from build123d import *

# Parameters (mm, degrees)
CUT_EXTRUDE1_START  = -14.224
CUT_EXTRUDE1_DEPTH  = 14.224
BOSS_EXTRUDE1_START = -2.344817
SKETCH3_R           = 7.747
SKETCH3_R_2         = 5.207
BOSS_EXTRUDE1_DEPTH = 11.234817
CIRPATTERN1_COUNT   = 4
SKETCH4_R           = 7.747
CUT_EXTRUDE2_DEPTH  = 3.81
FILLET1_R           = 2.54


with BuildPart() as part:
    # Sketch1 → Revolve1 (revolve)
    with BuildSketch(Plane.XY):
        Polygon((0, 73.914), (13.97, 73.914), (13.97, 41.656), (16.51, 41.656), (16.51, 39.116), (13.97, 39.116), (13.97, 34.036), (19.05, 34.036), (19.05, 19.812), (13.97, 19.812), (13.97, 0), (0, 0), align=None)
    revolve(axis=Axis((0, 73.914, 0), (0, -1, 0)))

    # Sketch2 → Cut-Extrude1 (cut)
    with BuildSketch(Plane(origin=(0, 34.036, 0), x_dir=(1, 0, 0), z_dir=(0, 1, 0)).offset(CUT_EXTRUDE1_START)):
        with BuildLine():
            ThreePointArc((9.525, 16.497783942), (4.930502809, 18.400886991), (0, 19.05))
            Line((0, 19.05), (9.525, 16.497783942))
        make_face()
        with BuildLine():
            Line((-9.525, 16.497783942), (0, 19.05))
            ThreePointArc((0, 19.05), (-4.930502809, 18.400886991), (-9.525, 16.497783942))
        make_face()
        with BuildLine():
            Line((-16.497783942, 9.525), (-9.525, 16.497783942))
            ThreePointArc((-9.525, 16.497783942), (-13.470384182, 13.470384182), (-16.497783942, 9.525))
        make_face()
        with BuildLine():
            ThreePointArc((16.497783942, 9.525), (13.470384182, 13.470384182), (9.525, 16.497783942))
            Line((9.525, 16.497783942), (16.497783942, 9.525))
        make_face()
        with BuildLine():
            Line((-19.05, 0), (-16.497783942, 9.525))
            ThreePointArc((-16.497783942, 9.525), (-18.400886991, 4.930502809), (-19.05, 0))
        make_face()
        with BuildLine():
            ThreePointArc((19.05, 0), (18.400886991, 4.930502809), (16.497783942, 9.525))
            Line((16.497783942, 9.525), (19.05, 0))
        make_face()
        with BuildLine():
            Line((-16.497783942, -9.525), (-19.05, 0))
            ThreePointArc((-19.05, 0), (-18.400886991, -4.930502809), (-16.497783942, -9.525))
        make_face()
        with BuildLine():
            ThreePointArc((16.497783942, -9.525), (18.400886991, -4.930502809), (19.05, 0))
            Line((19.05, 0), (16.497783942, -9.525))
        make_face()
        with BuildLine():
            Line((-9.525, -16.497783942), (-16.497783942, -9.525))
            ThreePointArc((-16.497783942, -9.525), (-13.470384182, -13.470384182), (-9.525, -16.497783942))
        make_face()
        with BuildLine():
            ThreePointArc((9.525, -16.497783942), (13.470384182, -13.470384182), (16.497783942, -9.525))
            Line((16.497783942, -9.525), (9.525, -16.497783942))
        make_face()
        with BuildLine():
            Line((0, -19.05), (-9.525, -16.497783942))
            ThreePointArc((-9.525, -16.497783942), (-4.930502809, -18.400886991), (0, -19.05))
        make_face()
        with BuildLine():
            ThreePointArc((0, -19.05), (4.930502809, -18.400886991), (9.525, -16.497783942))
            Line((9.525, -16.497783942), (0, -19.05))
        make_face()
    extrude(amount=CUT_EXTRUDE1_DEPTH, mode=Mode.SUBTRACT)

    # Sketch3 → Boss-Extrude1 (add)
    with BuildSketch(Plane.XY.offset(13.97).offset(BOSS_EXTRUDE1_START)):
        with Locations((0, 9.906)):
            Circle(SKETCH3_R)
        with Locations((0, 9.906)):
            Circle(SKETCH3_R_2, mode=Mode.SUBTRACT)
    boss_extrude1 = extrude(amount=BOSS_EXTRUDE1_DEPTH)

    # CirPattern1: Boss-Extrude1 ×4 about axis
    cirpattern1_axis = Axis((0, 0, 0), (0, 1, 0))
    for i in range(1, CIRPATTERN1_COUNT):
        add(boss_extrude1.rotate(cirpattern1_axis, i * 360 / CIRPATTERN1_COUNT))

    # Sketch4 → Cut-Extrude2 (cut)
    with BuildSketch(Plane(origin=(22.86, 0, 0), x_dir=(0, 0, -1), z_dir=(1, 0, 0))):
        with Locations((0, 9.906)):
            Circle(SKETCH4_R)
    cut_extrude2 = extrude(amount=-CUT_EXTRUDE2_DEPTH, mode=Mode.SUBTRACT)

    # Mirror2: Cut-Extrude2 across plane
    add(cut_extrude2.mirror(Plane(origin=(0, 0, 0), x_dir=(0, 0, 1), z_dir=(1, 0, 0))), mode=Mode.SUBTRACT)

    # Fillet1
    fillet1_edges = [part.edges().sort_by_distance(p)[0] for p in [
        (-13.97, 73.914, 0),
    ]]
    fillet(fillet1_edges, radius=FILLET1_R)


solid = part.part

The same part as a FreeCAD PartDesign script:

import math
import FreeCAD as App
import Part
import Sketcher

V = App.Vector
Q = App.Units.Quantity


def edges_at(feature, points):
    """Names of the edges that pass closest to the given points."""
    edges = feature.Shape.Edges
    near = lambda p: min(range(len(edges)), key=lambda i: edges[i].distToShape(Part.Vertex(*p))[0])
    return sorted({f"Edge{near(p) + 1}" for p in points})

doc = App.newDocument("Part")
body = doc.addObject("PartDesign::Body", "Body")

sketch1 = body.newObject("Sketcher::SketchObject", "Sketch")
sketch1.AttachmentSupport = (doc.getObject("XY_Plane"), [""])
sketch1.MapMode = "FlatFace"
sketch1.addGeometry(Part.LineSegment(V(14, 73.9, 0), V(0, 73.9, 0)), False)
sketch1.addGeometry(Part.LineSegment(V(0, 73.9, 0), V(0, 0, 0)), False)
sketch1.addGeometry(Part.LineSegment(V(0, 0, 0), V(14, 0, 0)), False)
sketch1.addGeometry(Part.LineSegment(V(14, 0, 0), V(14, 19.8, 0)), False)
sketch1.addGeometry(Part.LineSegment(V(14, 19.8, 0), V(19.1, 19.8, 0)), False)
sketch1.addGeometry(Part.LineSegment(V(19.1, 19.8, 0), V(19.1, 34, 0)), False)
sketch1.addGeometry(Part.LineSegment(V(19.1, 34, 0), V(14, 34, 0)), False)
sketch1.addGeometry(Part.LineSegment(V(14, 34, 0), V(14, 39.1, 0)), False)
sketch1.addGeometry(Part.LineSegment(V(14, 39.1, 0), V(16.5, 39.1, 0)), False)
sketch1.addGeometry(Part.LineSegment(V(16.5, 39.1, 0), V(16.5, 41.7, 0)), False)
sketch1.addGeometry(Part.LineSegment(V(16.5, 41.7, 0), V(14, 41.7, 0)), False)
sketch1.addGeometry(Part.LineSegment(V(14, 41.7, 0), V(14, 73.9, 0)), False)
sketch1.addConstraint(Sketcher.Constraint("Coincident", 0, 2, 1, 1))
sketch1.addConstraint(Sketcher.Constraint("Coincident", 1, 2, 2, 1))
sketch1.addConstraint(Sketcher.Constraint("Coincident", 2, 2, 3, 1))
sketch1.addConstraint(Sketcher.Constraint("Coincident", 3, 2, 4, 1))
sketch1.addConstraint(Sketcher.Constraint("Coincident", 4, 2, 5, 1))
sketch1.addConstraint(Sketcher.Constraint("Coincident", 5, 2, 6, 1))
sketch1.addConstraint(Sketcher.Constraint("Coincident", 6, 2, 7, 1))
sketch1.addConstraint(Sketcher.Constraint("Coincident", 7, 2, 8, 1))
sketch1.addConstraint(Sketcher.Constraint("Coincident", 8, 2, 9, 1))
sketch1.addConstraint(Sketcher.Constraint("Coincident", 9, 2, 10, 1))
sketch1.addConstraint(Sketcher.Constraint("Coincident", 10, 2, 11, 1))
sketch1.addConstraint(Sketcher.Constraint("Coincident", 11, 2, 0, 1))
sketch1.addConstraint(Sketcher.Constraint("Horizontal", 0))
sketch1.addConstraint(Sketcher.Constraint("Vertical", 1))
sketch1.addConstraint(Sketcher.Constraint("Horizontal", 2))
sketch1.addConstraint(Sketcher.Constraint("Vertical", 3))
sketch1.addConstraint(Sketcher.Constraint("Horizontal", 4))
sketch1.addConstraint(Sketcher.Constraint("Vertical", 5))
sketch1.addConstraint(Sketcher.Constraint("Horizontal", 6))
sketch1.addConstraint(Sketcher.Constraint("Vertical", 7))
sketch1.addConstraint(Sketcher.Constraint("Horizontal", 8))
sketch1.addConstraint(Sketcher.Constraint("Vertical", 9))
sketch1.addConstraint(Sketcher.Constraint("Horizontal", 10))
sketch1.addConstraint(Sketcher.Constraint("Vertical", 11))
sketch1.addConstraint(Sketcher.Constraint("Coincident", 1, 2, -1, 1))
sketch1.addConstraint(Sketcher.Constraint("Vertical", 3, 2, 6, 2))
sketch1.addConstraint(Sketcher.Constraint("Vertical", 7, 2, 10, 2))
sketch1.addConstraint(Sketcher.Constraint("Equal", 6, 7))
sketch1.addConstraint(Sketcher.Constraint("Equal", 10, 9))
sketch1.addConstraint(Sketcher.Constraint("DistanceX", 4, 1, 4, 2, Q("0.2 in")))
sketch1.addConstraint(Sketcher.Constraint("DistanceX", 8, 1, 8, 2, Q("0.1 in")))
sketch1.addConstraint(Sketcher.Constraint("DistanceX", 0, 2, 0, 1, Q("0.55 in")))
sketch1.addConstraint(Sketcher.Constraint("DistanceY", 1, 2, 1, 1, Q("2.91 in")))
sketch1.addConstraint(Sketcher.Constraint("DistanceY", 3, 1, 3, 2, Q("0.78 in")))
sketch1.addConstraint(Sketcher.Constraint("DistanceY", 5, 1, 5, 2, Q("0.56 in")))
revolution = body.newObject("PartDesign::Revolution", "Revolution")
revolution.Profile = sketch1
revolution.ReferenceAxis = (sketch1, ["V_Axis"])
revolution.Angle = 360

sketch2 = body.newObject("Sketcher::SketchObject", "Sketch001")
sketch2.AttachmentSupport = (doc.getObject("XZ_Plane"), [""])
sketch2.MapMode = "FlatFace"
sketch2.AttachmentOffset = App.Placement(V(0, 0, -0.78 * 25.4), App.Rotation())
sketch2.addGeometry(Part.ArcOfCircle(Part.Circle(V(0, 0, 0), V(0, 0, 1), 19), math.radians(-90), math.radians(-60)), False)
sketch2.addGeometry(Part.LineSegment(V(0, -19, 0), V(10, -16, 0)), False)
sketch2.addGeometry(Part.LineSegment(V(-10, -16, 0), V(0, -19, 0)), False)
sketch2.addGeometry(Part.ArcOfCircle(Part.Circle(V(0, 0, 0), V(0, 0, 1), 19), math.radians(-120), math.radians(-90)), False)
sketch2.addGeometry(Part.LineSegment(V(-16, -10, 0), V(-10, -16, 0)), False)
sketch2.addGeometry(Part.ArcOfCircle(Part.Circle(V(0, 0, 0), V(0, 0, 1), 19), math.radians(-150), math.radians(-120)), False)
sketch2.addGeometry(Part.ArcOfCircle(Part.Circle(V(0, 0, 0), V(0, 0, 1), 19), math.radians(-60), math.radians(-30)), False)
sketch2.addGeometry(Part.LineSegment(V(10, -16, 0), V(16, -10, 0)), False)
sketch2.addGeometry(Part.LineSegment(V(-19, 0, 0), V(-16, -10, 0)), False)
sketch2.addGeometry(Part.ArcOfCircle(Part.Circle(V(0, 0, 0), V(0, 0, 1), 19), math.radians(180), math.radians(210)), False)
sketch2.addGeometry(Part.ArcOfCircle(Part.Circle(V(0, 0, 0), V(0, 0, 1), 19), math.radians(-30), math.radians(0)), False)
sketch2.addGeometry(Part.LineSegment(V(16, -10, 0), V(19, 0, 0)), False)
sketch2.addGeometry(Part.LineSegment(V(-16, 10, 0), V(-19, 0, 0)), False)
sketch2.addGeometry(Part.ArcOfCircle(Part.Circle(V(0, 0, 0), V(0, 0, 1), 19), math.radians(150), math.radians(180)), False)
sketch2.addGeometry(Part.ArcOfCircle(Part.Circle(V(0, 0, 0), V(0, 0, 1), 19), math.radians(0), math.radians(30)), False)
sketch2.addGeometry(Part.LineSegment(V(19, 0, 0), V(16, 10, 0)), False)
sketch2.addGeometry(Part.LineSegment(V(-10, 16, 0), V(-16, 10, 0)), False)
sketch2.addGeometry(Part.ArcOfCircle(Part.Circle(V(0, 0, 0), V(0, 0, 1), 19), math.radians(120), math.radians(150)), False)
sketch2.addGeometry(Part.ArcOfCircle(Part.Circle(V(0, 0, 0), V(0, 0, 1), 19), math.radians(30), math.radians(60)), False)
sketch2.addGeometry(Part.LineSegment(V(16, 10, 0), V(10, 16, 0)), False)
sketch2.addGeometry(Part.LineSegment(V(0, 19, 0), V(-10, 16, 0)), False)
sketch2.addGeometry(Part.ArcOfCircle(Part.Circle(V(0, 0, 0), V(0, 0, 1), 19), math.radians(90), math.radians(120)), False)
sketch2.addGeometry(Part.ArcOfCircle(Part.Circle(V(0, 0, 0), V(0, 0, 1), 19), math.radians(60), math.radians(90)), False)
sketch2.addGeometry(Part.LineSegment(V(10, 16, 0), V(0, 19, 0)), False)
sketch2.addConstraint(Sketcher.Constraint("Coincident", 0, 1, 1, 1))
sketch2.addConstraint(Sketcher.Constraint("Coincident", 1, 2, 0, 2))
sketch2.addConstraint(Sketcher.Constraint("Coincident", 2, 1, 3, 1))
sketch2.addConstraint(Sketcher.Constraint("Coincident", 3, 2, 2, 2))
sketch2.addConstraint(Sketcher.Constraint("Coincident", 4, 1, 5, 1))
sketch2.addConstraint(Sketcher.Constraint("Coincident", 5, 2, 4, 2))
sketch2.addConstraint(Sketcher.Constraint("Coincident", 6, 1, 7, 1))
sketch2.addConstraint(Sketcher.Constraint("Coincident", 7, 2, 6, 2))
sketch2.addConstraint(Sketcher.Constraint("Coincident", 8, 1, 9, 1))
sketch2.addConstraint(Sketcher.Constraint("Coincident", 9, 2, 8, 2))
sketch2.addConstraint(Sketcher.Constraint("Coincident", 10, 1, 11, 1))
sketch2.addConstraint(Sketcher.Constraint("Coincident", 11, 2, 10, 2))
sketch2.addConstraint(Sketcher.Constraint("Coincident", 12, 1, 13, 1))
sketch2.addConstraint(Sketcher.Constraint("Coincident", 13, 2, 12, 2))
sketch2.addConstraint(Sketcher.Constraint("Coincident", 14, 1, 15, 1))
sketch2.addConstraint(Sketcher.Constraint("Coincident", 15, 2, 14, 2))
sketch2.addConstraint(Sketcher.Constraint("Coincident", 16, 1, 17, 1))
sketch2.addConstraint(Sketcher.Constraint("Coincident", 17, 2, 16, 2))
sketch2.addConstraint(Sketcher.Constraint("Coincident", 18, 1, 19, 1))
sketch2.addConstraint(Sketcher.Constraint("Coincident", 19, 2, 18, 2))
sketch2.addConstraint(Sketcher.Constraint("Coincident", 20, 1, 21, 1))
sketch2.addConstraint(Sketcher.Constraint("Coincident", 21, 2, 20, 2))
sketch2.addConstraint(Sketcher.Constraint("Coincident", 22, 1, 23, 1))
sketch2.addConstraint(Sketcher.Constraint("Coincident", 23, 2, 22, 2))
sketch2.addConstraint(Sketcher.Constraint("Coincident", 0, 3, -1, 1))
sketch2.addConstraint(Sketcher.Constraint("Coincident", 3, 3, -1, 1))
sketch2.addConstraint(Sketcher.Constraint("Coincident", 5, 3, -1, 1))
sketch2.addConstraint(Sketcher.Constraint("Coincident", 6, 3, -1, 1))
sketch2.addConstraint(Sketcher.Constraint("Coincident", 9, 3, -1, 1))
sketch2.addConstraint(Sketcher.Constraint("Coincident", 10, 3, -1, 1))
sketch2.addConstraint(Sketcher.Constraint("Coincident", 13, 3, -1, 1))
sketch2.addConstraint(Sketcher.Constraint("Coincident", 14, 3, -1, 1))
sketch2.addConstraint(Sketcher.Constraint("Coincident", 17, 3, -1, 1))
sketch2.addConstraint(Sketcher.Constraint("Coincident", 18, 3, -1, 1))
sketch2.addConstraint(Sketcher.Constraint("Coincident", 21, 3, -1, 1))
sketch2.addConstraint(Sketcher.Constraint("Coincident", 22, 3, -1, 1))
sketch2.addConstraint(Sketcher.Constraint("Coincident", 3, 2, 0, 1))
sketch2.addConstraint(Sketcher.Constraint("Coincident", 5, 2, 2, 1))
sketch2.addConstraint(Sketcher.Constraint("Coincident", 6, 1, 1, 2))
sketch2.addConstraint(Sketcher.Constraint("Coincident", 9, 2, 4, 1))
sketch2.addConstraint(Sketcher.Constraint("Coincident", 10, 1, 7, 2))
sketch2.addConstraint(Sketcher.Constraint("Coincident", 13, 2, 8, 1))
sketch2.addConstraint(Sketcher.Constraint("Coincident", 14, 1, 11, 2))
sketch2.addConstraint(Sketcher.Constraint("Coincident", 17, 2, 12, 1))
sketch2.addConstraint(Sketcher.Constraint("Coincident", 18, 1, 15, 2))
sketch2.addConstraint(Sketcher.Constraint("Coincident", 21, 2, 16, 1))
sketch2.addConstraint(Sketcher.Constraint("Coincident", 22, 1, 19, 2))
sketch2.addConstraint(Sketcher.Constraint("PointOnObject", 0, 1, -2))
sketch2.addConstraint(Sketcher.Constraint("PointOnObject", 8, 1, -1))
sketch2.addConstraint(Sketcher.Constraint("PointOnObject", 11, 2, -1))
sketch2.addConstraint(Sketcher.Constraint("PointOnObject", 20, 1, -2))
sketch2.addConstraint(Sketcher.Constraint("PointOnObject", 23, 2, -2))
sketch2.addConstraint(Sketcher.Constraint("Perpendicular", 4, 7))
sketch2.addConstraint(Sketcher.Constraint("Perpendicular", 1, 8))
sketch2.addConstraint(Sketcher.Constraint("Parallel", 11, 12))
sketch2.addConstraint(Sketcher.Constraint("Parallel", 8, 15))
sketch2.addConstraint(Sketcher.Constraint("Parallel", 7, 16))
sketch2.addConstraint(Sketcher.Constraint("Perpendicular", 16, 19))
sketch2.addConstraint(Sketcher.Constraint("Horizontal", 1, 2, 2, 1))
sketch2.addConstraint(Sketcher.Constraint("Equal", 2, 4))
sketch2.addConstraint(Sketcher.Constraint("Radius", 0, Q("0.75 in")))
pocket1 = body.newObject("PartDesign::Pocket", "Pocket")
pocket1.Profile = sketch2
pocket1.Length = Q("0.56 in")

sketch3 = body.newObject("Sketcher::SketchObject", "Sketch002")
sketch3.AttachmentSupport = (doc.getObject("XY_Plane"), [""])
sketch3.MapMode = "FlatFace"
sketch3.AttachmentOffset = App.Placement(V(0, 0, 11.625183), App.Rotation())
sketch3.addGeometry(Part.Circle(V(0, 10, 0), V(0, 0, 1), 8), False)
sketch3.addGeometry(Part.Circle(V(0, 10, 0), V(0, 0, 1), 5), False)
sketch3.addConstraint(Sketcher.Constraint("Coincident", 1, 3, 0, 3))
sketch3.addConstraint(Sketcher.Constraint("PointOnObject", 0, 3, -2))
sketch3.addConstraint(Sketcher.Constraint("Diameter", 0, Q("0.61 in")))
sketch3.addConstraint(Sketcher.Constraint("Diameter", 1, Q("0.41 in")))
sketch3.addConstraint(Sketcher.Constraint("DistanceY", -1, 1, 0, 3, Q("0.39 in")))
pad1 = body.newObject("PartDesign::Pad", "Pad")
pad1.Profile = sketch3
pad1.Length = 11.234817
doc.recompute()

polarpattern = body.newObject("PartDesign::PolarPattern", "PolarPattern")
polarpattern.Originals = [pad1]
polarpattern.Axis = (doc.getObject("Y_Axis"), [""])
polarpattern.Angle = 360
polarpattern.Occurrences = 4
body.Tip = polarpattern

sketch4 = body.newObject("Sketcher::SketchObject", "Sketch003")
sketch4.AttachmentSupport = (doc.getObject("YZ_Plane"), [""])
sketch4.MapMode = "FlatFace"
sketch4.AttachmentOffset = App.Placement(V(0, 0, 0.9 * 25.4), App.Rotation())
sketch4.addGeometry(Part.Circle(V(10, 0, 0), V(0, 0, 1), 8), False)
sketch4.addConstraint(Sketcher.Constraint("PointOnObject", 0, 3, -1))
sketch4.addConstraint(Sketcher.Constraint("Diameter", 0, Q("0.61 in")))
sketch4.addConstraint(Sketcher.Constraint("DistanceX", -1, 1, 0, 3, Q("0.39 in")))
pocket2 = body.newObject("PartDesign::Pocket", "Pocket001")
pocket2.Profile = sketch4
pocket2.Length = Q("0.15 in")
doc.recompute()

mirrored = body.newObject("PartDesign::Mirrored", "Mirrored")
mirrored.Originals = [pocket2]
mirrored.MirrorPlane = (doc.getObject("YZ_Plane"), [""])
body.Tip = mirrored
doc.recompute()

fillet = body.newObject("PartDesign::Fillet", "Fillet")
fillet.Base = (mirrored, edges_at(mirrored, [(-13.97, 73.914, 0)]))
fillet.Radius = Q("0.1 in")

doc.recompute()
